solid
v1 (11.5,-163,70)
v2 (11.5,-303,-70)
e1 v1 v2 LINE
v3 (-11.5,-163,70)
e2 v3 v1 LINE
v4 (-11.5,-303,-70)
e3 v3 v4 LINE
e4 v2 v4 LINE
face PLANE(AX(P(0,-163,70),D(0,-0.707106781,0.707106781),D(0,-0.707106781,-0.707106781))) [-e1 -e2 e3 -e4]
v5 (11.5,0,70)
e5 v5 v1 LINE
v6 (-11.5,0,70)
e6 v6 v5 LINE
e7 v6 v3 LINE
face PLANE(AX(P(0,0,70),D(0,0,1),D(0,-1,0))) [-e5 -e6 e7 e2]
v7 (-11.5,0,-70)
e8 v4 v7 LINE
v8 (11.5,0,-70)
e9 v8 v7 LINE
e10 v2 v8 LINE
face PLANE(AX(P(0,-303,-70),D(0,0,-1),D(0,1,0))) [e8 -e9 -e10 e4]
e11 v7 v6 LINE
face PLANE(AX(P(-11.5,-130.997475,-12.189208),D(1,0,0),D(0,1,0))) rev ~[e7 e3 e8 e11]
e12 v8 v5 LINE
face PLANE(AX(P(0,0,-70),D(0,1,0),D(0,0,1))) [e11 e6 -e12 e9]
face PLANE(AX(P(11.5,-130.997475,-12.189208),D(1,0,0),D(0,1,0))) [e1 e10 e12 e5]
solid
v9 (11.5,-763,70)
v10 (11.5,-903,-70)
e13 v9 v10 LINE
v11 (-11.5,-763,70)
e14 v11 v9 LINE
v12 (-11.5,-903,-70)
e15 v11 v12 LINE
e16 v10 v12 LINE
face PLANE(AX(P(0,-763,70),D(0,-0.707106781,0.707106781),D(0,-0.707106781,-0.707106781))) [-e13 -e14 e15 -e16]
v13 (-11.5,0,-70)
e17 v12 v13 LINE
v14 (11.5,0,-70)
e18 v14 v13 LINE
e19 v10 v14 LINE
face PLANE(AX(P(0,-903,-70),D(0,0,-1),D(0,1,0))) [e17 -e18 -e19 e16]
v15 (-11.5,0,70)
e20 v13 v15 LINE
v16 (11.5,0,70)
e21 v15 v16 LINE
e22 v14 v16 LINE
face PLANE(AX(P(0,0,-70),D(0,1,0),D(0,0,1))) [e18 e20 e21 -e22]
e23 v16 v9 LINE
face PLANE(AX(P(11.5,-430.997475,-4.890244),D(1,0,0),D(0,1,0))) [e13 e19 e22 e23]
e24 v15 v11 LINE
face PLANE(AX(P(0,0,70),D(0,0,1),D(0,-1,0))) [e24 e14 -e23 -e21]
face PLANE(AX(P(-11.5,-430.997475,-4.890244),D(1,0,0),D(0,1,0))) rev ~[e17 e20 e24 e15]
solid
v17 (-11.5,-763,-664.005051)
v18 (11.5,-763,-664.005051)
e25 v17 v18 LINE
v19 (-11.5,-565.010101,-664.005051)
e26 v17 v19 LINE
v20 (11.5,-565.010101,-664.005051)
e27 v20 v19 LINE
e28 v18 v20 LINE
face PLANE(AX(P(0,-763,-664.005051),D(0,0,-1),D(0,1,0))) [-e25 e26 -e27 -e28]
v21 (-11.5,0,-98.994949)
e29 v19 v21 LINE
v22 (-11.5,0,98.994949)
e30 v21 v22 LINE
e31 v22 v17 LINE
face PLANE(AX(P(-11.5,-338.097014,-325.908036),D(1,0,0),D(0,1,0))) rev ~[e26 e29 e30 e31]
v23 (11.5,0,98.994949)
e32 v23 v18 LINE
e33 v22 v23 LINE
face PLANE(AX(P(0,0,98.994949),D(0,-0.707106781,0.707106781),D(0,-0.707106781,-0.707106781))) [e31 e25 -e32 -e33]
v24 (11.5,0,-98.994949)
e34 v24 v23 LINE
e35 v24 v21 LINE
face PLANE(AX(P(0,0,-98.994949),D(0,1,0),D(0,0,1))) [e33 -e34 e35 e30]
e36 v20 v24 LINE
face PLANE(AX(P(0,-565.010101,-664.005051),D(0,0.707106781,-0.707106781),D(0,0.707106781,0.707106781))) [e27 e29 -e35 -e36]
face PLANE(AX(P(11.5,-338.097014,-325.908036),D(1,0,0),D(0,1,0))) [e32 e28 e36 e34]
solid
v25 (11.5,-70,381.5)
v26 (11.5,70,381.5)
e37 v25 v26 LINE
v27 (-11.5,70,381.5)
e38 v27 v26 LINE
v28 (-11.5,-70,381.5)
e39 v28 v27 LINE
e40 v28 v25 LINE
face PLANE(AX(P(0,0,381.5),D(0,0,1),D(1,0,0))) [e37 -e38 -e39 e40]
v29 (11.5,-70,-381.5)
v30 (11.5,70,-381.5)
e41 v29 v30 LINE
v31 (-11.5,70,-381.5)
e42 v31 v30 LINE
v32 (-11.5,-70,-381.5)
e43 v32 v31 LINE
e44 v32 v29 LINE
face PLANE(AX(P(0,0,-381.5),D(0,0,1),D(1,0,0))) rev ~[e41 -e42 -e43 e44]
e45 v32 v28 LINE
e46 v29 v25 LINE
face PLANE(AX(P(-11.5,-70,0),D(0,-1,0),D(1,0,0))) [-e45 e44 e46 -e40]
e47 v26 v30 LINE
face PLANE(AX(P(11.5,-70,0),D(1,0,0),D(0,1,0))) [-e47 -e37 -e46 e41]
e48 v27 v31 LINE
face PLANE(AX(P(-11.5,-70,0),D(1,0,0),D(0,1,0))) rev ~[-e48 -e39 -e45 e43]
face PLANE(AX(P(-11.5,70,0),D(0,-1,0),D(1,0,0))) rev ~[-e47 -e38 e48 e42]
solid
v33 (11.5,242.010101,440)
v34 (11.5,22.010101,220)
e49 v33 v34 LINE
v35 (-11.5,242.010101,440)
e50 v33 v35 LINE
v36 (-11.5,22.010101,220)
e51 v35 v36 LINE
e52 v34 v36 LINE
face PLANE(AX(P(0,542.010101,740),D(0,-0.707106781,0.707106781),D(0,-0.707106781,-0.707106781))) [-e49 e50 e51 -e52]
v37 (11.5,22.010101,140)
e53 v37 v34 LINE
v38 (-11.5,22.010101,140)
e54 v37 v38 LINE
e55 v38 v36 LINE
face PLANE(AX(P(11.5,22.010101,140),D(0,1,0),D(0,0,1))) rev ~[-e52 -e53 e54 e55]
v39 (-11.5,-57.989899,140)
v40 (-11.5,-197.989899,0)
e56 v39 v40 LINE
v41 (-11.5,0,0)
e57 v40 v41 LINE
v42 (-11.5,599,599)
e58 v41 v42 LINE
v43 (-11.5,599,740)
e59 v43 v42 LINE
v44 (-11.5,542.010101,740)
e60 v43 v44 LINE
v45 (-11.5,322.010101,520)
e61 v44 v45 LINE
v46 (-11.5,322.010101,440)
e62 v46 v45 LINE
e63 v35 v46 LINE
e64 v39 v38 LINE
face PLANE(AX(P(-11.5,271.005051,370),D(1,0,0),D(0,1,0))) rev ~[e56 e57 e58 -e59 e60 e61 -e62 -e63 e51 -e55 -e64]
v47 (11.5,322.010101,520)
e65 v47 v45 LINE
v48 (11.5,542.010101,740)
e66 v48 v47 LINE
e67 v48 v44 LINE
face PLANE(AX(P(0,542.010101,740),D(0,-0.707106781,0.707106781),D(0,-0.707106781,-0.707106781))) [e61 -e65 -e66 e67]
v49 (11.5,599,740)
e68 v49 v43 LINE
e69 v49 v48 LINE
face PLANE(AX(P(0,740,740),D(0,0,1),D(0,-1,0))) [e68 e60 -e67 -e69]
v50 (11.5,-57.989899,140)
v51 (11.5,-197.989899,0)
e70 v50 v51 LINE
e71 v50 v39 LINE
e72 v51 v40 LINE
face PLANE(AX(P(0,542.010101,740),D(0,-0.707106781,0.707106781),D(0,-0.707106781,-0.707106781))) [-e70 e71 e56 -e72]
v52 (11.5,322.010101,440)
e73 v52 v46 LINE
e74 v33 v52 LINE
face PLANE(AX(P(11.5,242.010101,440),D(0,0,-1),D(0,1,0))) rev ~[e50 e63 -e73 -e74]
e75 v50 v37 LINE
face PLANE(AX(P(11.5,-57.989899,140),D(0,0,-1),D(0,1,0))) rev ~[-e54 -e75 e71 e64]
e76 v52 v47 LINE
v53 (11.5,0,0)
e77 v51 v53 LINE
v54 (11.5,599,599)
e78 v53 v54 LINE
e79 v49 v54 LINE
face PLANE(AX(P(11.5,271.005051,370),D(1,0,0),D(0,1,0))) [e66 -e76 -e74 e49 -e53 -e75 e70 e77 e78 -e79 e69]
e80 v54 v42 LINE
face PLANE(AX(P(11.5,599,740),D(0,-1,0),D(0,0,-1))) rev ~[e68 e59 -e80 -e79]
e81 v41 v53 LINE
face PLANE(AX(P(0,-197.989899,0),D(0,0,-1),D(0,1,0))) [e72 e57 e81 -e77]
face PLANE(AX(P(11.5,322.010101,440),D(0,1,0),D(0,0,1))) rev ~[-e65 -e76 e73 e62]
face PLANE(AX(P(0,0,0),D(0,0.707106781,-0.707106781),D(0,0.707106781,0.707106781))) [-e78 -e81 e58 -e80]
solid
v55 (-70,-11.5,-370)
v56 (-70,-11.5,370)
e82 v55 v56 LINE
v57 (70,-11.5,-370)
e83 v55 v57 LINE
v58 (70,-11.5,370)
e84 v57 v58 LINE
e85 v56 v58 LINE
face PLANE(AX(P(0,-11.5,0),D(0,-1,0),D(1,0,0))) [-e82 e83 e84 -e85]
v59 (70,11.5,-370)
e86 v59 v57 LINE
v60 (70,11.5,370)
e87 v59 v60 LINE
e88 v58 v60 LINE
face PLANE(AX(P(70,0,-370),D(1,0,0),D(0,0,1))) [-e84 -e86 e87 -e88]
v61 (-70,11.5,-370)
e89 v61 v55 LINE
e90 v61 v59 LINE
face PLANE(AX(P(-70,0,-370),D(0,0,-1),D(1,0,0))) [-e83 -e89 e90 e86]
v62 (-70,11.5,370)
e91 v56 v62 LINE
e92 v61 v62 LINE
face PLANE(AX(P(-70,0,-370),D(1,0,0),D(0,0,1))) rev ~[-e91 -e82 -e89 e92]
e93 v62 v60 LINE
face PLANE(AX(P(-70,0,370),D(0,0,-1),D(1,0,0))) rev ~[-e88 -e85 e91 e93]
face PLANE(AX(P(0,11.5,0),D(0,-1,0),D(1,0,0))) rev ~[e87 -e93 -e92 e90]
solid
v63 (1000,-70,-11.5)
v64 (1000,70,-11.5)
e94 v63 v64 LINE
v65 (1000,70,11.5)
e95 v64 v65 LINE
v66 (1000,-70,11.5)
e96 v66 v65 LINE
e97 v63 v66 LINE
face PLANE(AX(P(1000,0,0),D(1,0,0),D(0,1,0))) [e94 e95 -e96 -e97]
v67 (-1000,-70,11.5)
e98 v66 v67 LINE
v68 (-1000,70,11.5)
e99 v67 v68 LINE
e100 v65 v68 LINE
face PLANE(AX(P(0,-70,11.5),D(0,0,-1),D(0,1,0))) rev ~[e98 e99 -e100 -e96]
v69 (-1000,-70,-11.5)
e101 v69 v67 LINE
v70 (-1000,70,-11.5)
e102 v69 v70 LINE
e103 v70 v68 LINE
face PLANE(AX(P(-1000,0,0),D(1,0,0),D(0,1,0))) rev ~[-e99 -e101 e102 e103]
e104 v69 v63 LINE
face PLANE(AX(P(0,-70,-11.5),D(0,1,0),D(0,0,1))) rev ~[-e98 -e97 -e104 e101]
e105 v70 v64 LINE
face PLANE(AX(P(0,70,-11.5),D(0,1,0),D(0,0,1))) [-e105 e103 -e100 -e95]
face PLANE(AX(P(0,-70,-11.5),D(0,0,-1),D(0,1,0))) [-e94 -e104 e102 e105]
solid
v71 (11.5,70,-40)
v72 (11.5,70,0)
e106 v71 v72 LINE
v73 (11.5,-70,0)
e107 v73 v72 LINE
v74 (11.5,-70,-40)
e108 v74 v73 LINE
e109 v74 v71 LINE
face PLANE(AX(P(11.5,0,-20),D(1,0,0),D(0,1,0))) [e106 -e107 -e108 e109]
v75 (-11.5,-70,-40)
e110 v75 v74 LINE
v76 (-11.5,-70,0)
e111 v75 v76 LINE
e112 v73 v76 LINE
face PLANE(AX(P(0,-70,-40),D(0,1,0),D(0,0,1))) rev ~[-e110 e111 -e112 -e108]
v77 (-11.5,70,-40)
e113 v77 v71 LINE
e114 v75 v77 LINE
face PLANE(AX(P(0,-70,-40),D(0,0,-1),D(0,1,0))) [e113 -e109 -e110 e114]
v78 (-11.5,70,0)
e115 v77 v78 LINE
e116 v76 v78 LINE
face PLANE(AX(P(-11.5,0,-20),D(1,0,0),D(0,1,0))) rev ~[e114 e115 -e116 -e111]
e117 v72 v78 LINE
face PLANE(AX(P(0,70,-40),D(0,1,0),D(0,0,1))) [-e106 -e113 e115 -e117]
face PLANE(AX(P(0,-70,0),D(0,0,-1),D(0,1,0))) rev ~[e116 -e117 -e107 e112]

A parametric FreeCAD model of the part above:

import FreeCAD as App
import Part
import Sketcher
Q = App.Units.Quantity

doc = App.newDocument("Part")
params = doc.addObject("Spreadsheet::Sheet", "Params")
for row, (alias, value) in enumerate([
    ("sketch1_width", "140 mm"),
    ("sketch1_height", "23 mm"),
    ("pad1_length", "2000 mm"),
    ("sketch2_width", "23 mm"),
    ("sketch2_height", "140 mm"),
    ("pad2_length", "763 mm"),
    ("pad3_length", "23 mm"),
    ("sketch4_width", "163 mm"),
    ("sketch4_width2", "303 mm"),
    ("sketch4_height", "140 mm"),
    ("pad4_length", "23 mm"),
    ("sketch5_width", "763 mm"),
    ("sketch5_width2", "903 mm"),
    ("sketch5_height", "140 mm"),
    ("pad5_length", "23 mm"),
    ("sketch6_width", "140 mm"),
    ("sketch6_height", "740 mm"),
    ("pad6_length", "23 mm"),
    ("pad7_length", "23 mm"),
    ("sketch8_width", "80 mm"),
    ("sketch9_width", "80 mm"),
    ("sketch10_width", "141 mm"),
    ("sketch11_width", "140 mm"),
    ("sketch11_height", "40 mm"),
    ("pad8_length", "23 mm"),
], start=1):
    params.set(f"A{row}", alias)
    params.set(f"B{row}", "=" + value)
    params.setAlias(f"B{row}", alias)

body = doc.addObject("PartDesign::Body", "Body")

sketch1 = body.newObject("Sketcher::SketchObject", "Sketch")
sketch1.AttachmentSupport = (doc.getObject("YZ_Plane"), [""])
sketch1.MapMode = "FlatFace"
sketch1.addGeometry([
    Part.LineSegment(App.Vector(-70, 12, 0), App.Vector(-70, -12, 0)),
    Part.LineSegment(App.Vector(-70, -12, 0), App.Vector(70, -12, 0)),
    Part.LineSegment(App.Vector(70, -12, 0), App.Vector(70, 12, 0)),
    Part.LineSegment(App.Vector(70, 12, 0), App.Vector(-70, 12, 0)),
], False)
sketch1.addConstraint([
    Sketcher.Constraint("Coincident", 0, 2, 1, 1),
    Sketcher.Constraint("Coincident", 1, 2, 2, 1),
    Sketcher.Constraint("Coincident", 2, 2, 3, 1),
    Sketcher.Constraint("Coincident", 3, 2, 0, 1),
    Sketcher.Constraint("Vertical", 0),
    Sketcher.Constraint("Horizontal", 1),
    Sketcher.Constraint("Vertical", 2),
    Sketcher.Constraint("Horizontal", 3),
    Sketcher.Constraint("Symmetric", 0, 2, 2, 2, -1, 1),
    Sketcher.Constraint("DistanceX", 1, 1, 1, 2, 140.0),
    Sketcher.Constraint("DistanceY", 0, 2, 0, 1, 23.0),
])
sketch1.setExpression("Constraints[9]", "Params.sketch1_width")
sketch1.setExpression("Constraints[10]", "Params.sketch1_height")
pad1 = body.newObject("PartDesign::Pad", "Pad")
pad1.Profile = sketch1
pad1.setExpression("Length", "Params.pad1_length")
pad1.Midplane = True
body2 = doc.addObject("PartDesign::Body", "Body001")

sketch2 = body2.newObject("Sketcher::SketchObject", "Sketch001")
sketch2.AttachmentSupport = (doc.getObject("XY_Plane001"), [""])
sketch2.MapMode = "FlatFace"
sketch2.addGeometry([
    Part.LineSegment(App.Vector(-12, 70, 0), App.Vector(-12, -70, 0)),
    Part.LineSegment(App.Vector(-12, -70, 0), App.Vector(12, -70, 0)),
    Part.LineSegment(App.Vector(12, -70, 0), App.Vector(12, 70, 0)),
    Part.LineSegment(App.Vector(12, 70, 0), App.Vector(-12, 70, 0)),
], False)
sketch2.addConstraint([
    Sketcher.Constraint("Coincident", 0, 2, 1, 1),
    Sketcher.Constraint("Coincident", 1, 2, 2, 1),
    Sketcher.Constraint("Coincident", 2, 2, 3, 1),
    Sketcher.Constraint("Coincident", 3, 2, 0, 1),
    Sketcher.Constraint("Vertical", 0),
    Sketcher.Constraint("Horizontal", 1),
    Sketcher.Constraint("Vertical", 2),
    Sketcher.Constraint("Horizontal", 3),
    Sketcher.Constraint("Symmetric", 0, 2, 2, 2, -1, 1),
    Sketcher.Constraint("DistanceX", 1, 1, 1, 2, 23.0),
    Sketcher.Constraint("DistanceY", 0, 2, 0, 1, 140.0),
])
sketch2.setExpression("Constraints[9]", "Params.sketch2_width")
sketch2.setExpression("Constraints[10]", "Params.sketch2_height")
pad2 = body2.newObject("PartDesign::Pad", "Pad001")
pad2.Profile = sketch2
pad2.setExpression("Length", "Params.pad2_length")
pad2.Midplane = True
body3 = doc.addObject("PartDesign::Body", "Body002")

sketch3 = body3.newObject("Sketcher::SketchObject", "Sketch002")
sketch3.AttachmentSupport = (doc.getObject("YZ_Plane002"), [""])
sketch3.MapMode = "FlatFace"
sketch3.addGeometry([
    Part.LineSegment(App.Vector(0, -99, 0), App.Vector(0, 99, 0)),
    Part.LineSegment(App.Vector(0, 99, 0), App.Vector(-763, -664, 0)),
    Part.LineSegment(App.Vector(-763, -664, 0), App.Vector(-565, -664, 0)),
    Part.LineSegment(App.Vector(-565, -664, 0), App.Vector(0, -99, 0)),
], False)
sketch3.addConstraint([
    Sketcher.Constraint("Coincident", 0, 2, 1, 1),
    Sketcher.Constraint("Coincident", 1, 2, 2, 1),
    Sketcher.Constraint("Coincident", 2, 2, 3, 1),
    Sketcher.Constraint("Coincident", 3, 2, 0, 1),
    Sketcher.Constraint("Vertical", 0),
    Sketcher.Constraint("Horizontal", 2),
    Sketcher.Constraint("Symmetric", 0, 2, 3, 2, -1, 1),
    Sketcher.Constraint("Parallel", 1, 3),
    Sketcher.Constraint("Equal", 2, 0),
    Sketcher.Constraint("DistanceX", 1, 2, -1, 1, 763.0),
    Sketcher.Constraint("DistanceX", 2, 1, 2, 2, 197.989899),
])
pad3 = body3.newObject("PartDesign::Pad", "Pad002")
pad3.Profile = sketch3
pad3.setExpression("Length", "Params.pad3_length")
pad3.Midplane = True
body4 = doc.addObject("PartDesign::Body", "Body003")

sketch4 = body4.newObject("Sketcher::SketchObject", "Sketch003")
sketch4.AttachmentSupport = (doc.getObject("YZ_Plane003"), [""])
sketch4.MapMode = "FlatFace"
sketch4.addGeometry([
    Part.LineSegment(App.Vector(0, -70, 0), App.Vector(0, 70, 0)),
    Part.LineSegment(App.Vector(0, 70, 0), App.Vector(-163, 70, 0)),
    Part.LineSegment(App.Vector(-163, 70, 0), App.Vector(-303, -70, 0)),
    Part.LineSegment(App.Vector(-303, -70, 0), App.Vector(0, -70, 0)),
], False)
sketch4.addConstraint([
    Sketcher.Constraint("Coincident", 0, 2, 1, 1),
    Sketcher.Constraint("Coincident", 1, 2, 2, 1),
    Sketcher.Constraint("Coincident", 2, 2, 3, 1),
    Sketcher.Constraint("Coincident", 3, 2, 0, 1),
    Sketcher.Constraint("Vertical", 0),
    Sketcher.Constraint("Horizontal", 1),
    Sketcher.Constraint("Horizontal", 3),
    Sketcher.Constraint("Symmetric", 0, 2, 3, 2, -1, 1),
    Sketcher.Constraint("DistanceX", 1, 2, 1, 1, 163.0),
    Sketcher.Constraint("DistanceX", 3, 1, 3, 2, 303.0),
    Sketcher.Constraint("DistanceY", 0, 1, 0, 2, 140.0),
])
sketch4.setExpression("Constraints[8]", "Params.sketch4_width")
sketch4.setExpression("Constraints[9]", "Params.sketch4_width2")
sketch4.setExpression("Constraints[10]", "Params.sketch4_height")
pad4 = body4.newObject("PartDesign::Pad", "Pad003")
pad4.Profile = sketch4
pad4.setExpression("Length", "Params.pad4_length")
pad4.Midplane = True
body5 = doc.addObject("PartDesign::Body", "Body004")

sketch5 = body5.newObject("Sketcher::SketchObject", "Sketch004")
sketch5.AttachmentSupport = (doc.getObject("YZ_Plane004"), [""])
sketch5.MapMode = "FlatFace"
sketch5.addGeometry([
    Part.LineSegment(App.Vector(0, -70, 0), App.Vector(0, 70, 0)),
    Part.LineSegment(App.Vector(0, 70, 0), App.Vector(-763, 70, 0)),
    Part.LineSegment(App.Vector(-763, 70, 0), App.Vector(-903, -70, 0)),
    Part.LineSegment(App.Vector(-903, -70, 0), App.Vector(0, -70, 0)),
], False)
sketch5.addConstraint([
    Sketcher.Constraint("Coincident", 0, 2, 1, 1),
    Sketcher.Constraint("Coincident", 1, 2, 2, 1),
    Sketcher.Constraint("Coincident", 2, 2, 3, 1),
    Sketcher.Constraint("Coincident", 3, 2, 0, 1),
    Sketcher.Constraint("Vertical", 0),
    Sketcher.Constraint("Horizontal", 1),
    Sketcher.Constraint("Horizontal", 3),
    Sketcher.Constraint("Symmetric", 0, 2, 3, 2, -1, 1),
    Sketcher.Constraint("DistanceX", 1, 2, 1, 1, 763.0),
    Sketcher.Constraint("DistanceX", 3, 1, 3, 2, 903.0),
    Sketcher.Constraint("DistanceY", 0, 1, 0, 2, 140.0),
])
sketch5.setExpression("Constraints[8]", "Params.sketch5_width")
sketch5.setExpression("Constraints[9]", "Params.sketch5_width2")
sketch5.setExpression("Constraints[10]", "Params.sketch5_height")
pad5 = body5.newObject("PartDesign::Pad", "Pad004")
pad5.Profile = sketch5
pad5.setExpression("Length", "Params.pad5_length")
pad5.Midplane = True
body6 = doc.addObject("PartDesign::Body", "Body005")

sketch6 = body6.newObject("Sketcher::SketchObject", "Sketch005")
sketch6.AttachmentSupport = (doc.getObject("XZ_Plane005"), [""])
sketch6.MapMode = "FlatFace"
sketch6.addGeometry([
    Part.LineSegment(App.Vector(-70, 370, 0), App.Vector(-70, -370, 0)),
    Part.LineSegment(App.Vector(-70, -370, 0), App.Vector(70, -370, 0)),
    Part.LineSegment(App.Vector(70, -370, 0), App.Vector(70, 370, 0)),
    Part.LineSegment(App.Vector(70, 370, 0), App.Vector(-70, 370, 0)),
], False)
sketch6.addConstraint([
    Sketcher.Constraint("Coincident", 0, 2, 1, 1),
    Sketcher.Constraint("Coincident", 1, 2, 2, 1),
    Sketcher.Constraint("Coincident", 2, 2, 3, 1),
    Sketcher.Constraint("Coincident", 3, 2, 0, 1),
    Sketcher.Constraint("Vertical", 0),
    Sketcher.Constraint("Horizontal", 1),
    Sketcher.Constraint("Vertical", 2),
    Sketcher.Constraint("Horizontal", 3),
    Sketcher.Constraint("Symmetric", 0, 2, 2, 2, -1, 1),
    Sketcher.Constraint("DistanceX", 1, 1, 1, 2, 140.0),
    Sketcher.Constraint("DistanceY", 0, 2, 0, 1, 740.0),
])
sketch6.setExpression("Constraints[9]", "Params.sketch6_width")
sketch6.setExpression("Constraints[10]", "Params.sketch6_height")
pad6 = body6.newObject("PartDesign::Pad", "Pad005")
pad6.Profile = sketch6
pad6.setExpression("Length", "Params.pad6_length")
pad6.Midplane = True
body7 = doc.addObject("PartDesign::Body", "Body006")

sketch7 = body7.newObject("Sketcher::SketchObject", "Sketch006")
sketch7.AttachmentSupport = (doc.getObject("YZ_Plane006"), [""])
sketch7.MapMode = "FlatFace"
sketch7.addGeometry([
    Part.LineSegment(App.Vector(-198, 0, 0), App.Vector(0, 0, 0)),
    Part.LineSegment(App.Vector(0, 0, 0), App.Vector(740, 740, 0)),
    Part.LineSegment(App.Vector(740, 740, 0), App.Vector(542, 740, 0)),
    Part.LineSegment(App.Vector(542, 740, 0), App.Vector(-198, 0, 0)),
], False)
sketch7.addConstraint([
    Sketcher.Constraint("Coincident", 0, 2, 1, 1),
    Sketcher.Constraint("Coincident", 1, 2, 2, 1),
    Sketcher.Constraint("Coincident", 2, 2, 3, 1),
    Sketcher.Constraint("Coincident", 3, 2, 0, 1),
    Sketcher.Constraint("Horizontal", 0),
    Sketcher.Constraint("Horizontal", 2),
    Sketcher.Constraint("Coincident", 0, 2, -1, 1),
    Sketcher.Constraint("Parallel", 1, 3),
    Sketcher.Constraint("Angle", 1, Q("45 deg")),
    Sketcher.Constraint("DistanceX", -1, 1, 1, 2, 740.0),
    Sketcher.Constraint("DistanceX", 0, 1, 0, 2, 197.989899),
])
pad7 = body7.newObject("PartDesign::Pad", "Pad006")
pad7.Profile = sketch7
pad7.setExpression("Length", "Params.pad7_length")
pad7.Midplane = True

sketch8 = body7.newObject("Sketcher::SketchObject", "Sketch007")
sketch8.AttachmentSupport = (doc.getObject("YZ_Plane006"), [""])
sketch8.MapMode = "FlatFace"
sketch8.AttachmentOffset = App.Placement(App.Vector(0, 0, 11.5), App.Rotation())
sketch8.addGeometry([
    Part.LineSegment(App.Vector(22, 220, 0), App.Vector(-58, 140, 0)),
    Part.LineSegment(App.Vector(-58, 140, 0), App.Vector(22, 140, 0)),
    Part.LineSegment(App.Vector(22, 140, 0), App.Vector(22, 220, 0)),
], False)
sketch8.addConstraint([
    Sketcher.Constraint("Coincident", 0, 2, 1, 1),
    Sketcher.Constraint("Coincident", 1, 2, 2, 1),
    Sketcher.Constraint("Coincident", 2, 2, 0, 1),
    Sketcher.Constraint("Horizontal", 1),
    Sketcher.Constraint("Vertical", 2),
    Sketcher.Constraint("Equal", 1, 2),
    Sketcher.Constraint("DistanceX", 1, 1, 1, 2, 80.0),
    Sketcher.Constraint("DistanceY", -1, 1, 0, 2, 140.0),
    Sketcher.Constraint("DistanceX", 0, 2, -1, 1, 57.989899),
])
sketch8.setExpression("Constraints[6]", "Params.sketch8_width")
pocket1 = body7.newObject("PartDesign::Pocket", "Pocket")
pocket1.Profile = sketch8
pocket1.Type = "ThroughAll"

sketch9 = body7.newObject("Sketcher::SketchObject", "Sketch008")
sketch9.AttachmentSupport = (doc.getObject("YZ_Plane006"), [""])
sketch9.MapMode = "FlatFace"
sketch9.AttachmentOffset = App.Placement(App.Vector(0, 0, 11.5), App.Rotation())
sketch9.addGeometry([
    Part.LineSegment(App.Vector(322, 520, 0), App.Vector(242, 440, 0)),
    Part.LineSegment(App.Vector(242, 440, 0), App.Vector(322, 440, 0)),
    Part.LineSegment(App.Vector(322, 440, 0), App.Vector(322, 520, 0)),
], False)
sketch9.addConstraint([
    Sketcher.Constraint("Coincident", 0, 2, 1, 1),
    Sketcher.Constraint("Coincident", 1, 2, 2, 1),
    Sketcher.Constraint("Coincident", 2, 2, 0, 1),
    Sketcher.Constraint("Horizontal", 1),
    Sketcher.Constraint("Vertical", 2),
    Sketcher.Constraint("Equal", 1, 2),
    Sketcher.Constraint("DistanceX", 1, 1, 1, 2, 80.0),
    Sketcher.Constraint("DistanceY", -1, 1, 0, 2, 440.0),
    Sketcher.Constraint("DistanceX", -1, 1, 0, 2, 242.010101),
])
sketch9.setExpression("Constraints[6]", "Params.sketch9_width")
pocket2 = body7.newObject("PartDesign::Pocket", "Pocket001")
pocket2.Profile = sketch9
pocket2.Type = "ThroughAll"

sketch10 = body7.newObject("Sketcher::SketchObject", "Sketch009")
sketch10.AttachmentSupport = (doc.getObject("YZ_Plane006"), [""])
sketch10.MapMode = "FlatFace"
sketch10.AttachmentOffset = App.Placement(App.Vector(0, 0, 11.5), App.Rotation())
sketch10.addGeometry([
    Part.LineSegment(App.Vector(740, 740, 0), App.Vector(599, 740, 0)),
    Part.LineSegment(App.Vector(599, 740, 0), App.Vector(599, 599, 0)),
    Part.LineSegment(App.Vector(599, 599, 0), App.Vector(740, 740, 0)),
], False)
sketch10.addConstraint([
    Sketcher.Constraint("Coincident", 0, 2, 1, 1),
    Sketcher.Constraint("Coincident", 1, 2, 2, 1),
    Sketcher.Constraint("Coincident", 2, 2, 0, 1),
    Sketcher.Constraint("Horizontal", 0),
    Sketcher.Constraint("Vertical", 1),
    Sketcher.Constraint("Equal", 0, 1),
    Sketcher.Constraint("DistanceX", 0, 2, 0, 1, 141.0),
    Sketcher.Constraint("DistanceX", -1, 1, 0, 2, 599.0),
    Sketcher.Constraint("DistanceY", -1, 1, 0, 2, 740.0),
])
sketch10.setExpression("Constraints[6]", "Params.sketch10_width")
pocket3 = body7.newObject("PartDesign::Pocket", "Pocket002")
pocket3.Profile = sketch10
pocket3.Type = "ThroughAll"
body8 = doc.addObject("PartDesign::Body", "Body007")

sketch11 = body8.newObject("Sketcher::SketchObject", "Sketch010")
sketch11.AttachmentSupport = (doc.getObject("YZ_Plane007"), [""])
sketch11.MapMode = "FlatFace"
sketch11.addGeometry([
    Part.LineSegment(App.Vector(-70, 0, 0), App.Vector(-70, -40, 0)),
    Part.LineSegment(App.Vector(-70, -40, 0), App.Vector(70, -40, 0)),
    Part.LineSegment(App.Vector(70, -40, 0), App.Vector(70, 0, 0)),
    Part.LineSegment(App.Vector(70, 0, 0), App.Vector(-70, 0, 0)),
], False)
sketch11.addConstraint([
    Sketcher.Constraint("Coincident", 0, 2, 1, 1),
    Sketcher.Constraint("Coincident", 1, 2, 2, 1),
    Sketcher.Constraint("Coincident", 2, 2, 3, 1),
    Sketcher.Constraint("Coincident", 3, 2, 0, 1),
    Sketcher.Constraint("Vertical", 0),
    Sketcher.Constraint("Horizontal", 1),
    Sketcher.Constraint("Vertical", 2),
    Sketcher.Constraint("Horizontal", 3),
    Sketcher.Constraint("Symmetric", 2, 2, 3, 2, -1, 1),
    Sketcher.Constraint("DistanceX", 1, 1, 1, 2, 140.0),
    Sketcher.Constraint("DistanceY", 0, 2, 0, 1, 40.0),
])
sketch11.setExpression("Constraints[9]", "Params.sketch11_width")
sketch11.setExpression("Constraints[10]", "Params.sketch11_height")
pad8 = body8.newObject("PartDesign::Pad", "Pad007")
pad8.Profile = sketch11
pad8.setExpression("Length", "Params.pad8_length")
pad8.Midplane = True

doc.recompute()
